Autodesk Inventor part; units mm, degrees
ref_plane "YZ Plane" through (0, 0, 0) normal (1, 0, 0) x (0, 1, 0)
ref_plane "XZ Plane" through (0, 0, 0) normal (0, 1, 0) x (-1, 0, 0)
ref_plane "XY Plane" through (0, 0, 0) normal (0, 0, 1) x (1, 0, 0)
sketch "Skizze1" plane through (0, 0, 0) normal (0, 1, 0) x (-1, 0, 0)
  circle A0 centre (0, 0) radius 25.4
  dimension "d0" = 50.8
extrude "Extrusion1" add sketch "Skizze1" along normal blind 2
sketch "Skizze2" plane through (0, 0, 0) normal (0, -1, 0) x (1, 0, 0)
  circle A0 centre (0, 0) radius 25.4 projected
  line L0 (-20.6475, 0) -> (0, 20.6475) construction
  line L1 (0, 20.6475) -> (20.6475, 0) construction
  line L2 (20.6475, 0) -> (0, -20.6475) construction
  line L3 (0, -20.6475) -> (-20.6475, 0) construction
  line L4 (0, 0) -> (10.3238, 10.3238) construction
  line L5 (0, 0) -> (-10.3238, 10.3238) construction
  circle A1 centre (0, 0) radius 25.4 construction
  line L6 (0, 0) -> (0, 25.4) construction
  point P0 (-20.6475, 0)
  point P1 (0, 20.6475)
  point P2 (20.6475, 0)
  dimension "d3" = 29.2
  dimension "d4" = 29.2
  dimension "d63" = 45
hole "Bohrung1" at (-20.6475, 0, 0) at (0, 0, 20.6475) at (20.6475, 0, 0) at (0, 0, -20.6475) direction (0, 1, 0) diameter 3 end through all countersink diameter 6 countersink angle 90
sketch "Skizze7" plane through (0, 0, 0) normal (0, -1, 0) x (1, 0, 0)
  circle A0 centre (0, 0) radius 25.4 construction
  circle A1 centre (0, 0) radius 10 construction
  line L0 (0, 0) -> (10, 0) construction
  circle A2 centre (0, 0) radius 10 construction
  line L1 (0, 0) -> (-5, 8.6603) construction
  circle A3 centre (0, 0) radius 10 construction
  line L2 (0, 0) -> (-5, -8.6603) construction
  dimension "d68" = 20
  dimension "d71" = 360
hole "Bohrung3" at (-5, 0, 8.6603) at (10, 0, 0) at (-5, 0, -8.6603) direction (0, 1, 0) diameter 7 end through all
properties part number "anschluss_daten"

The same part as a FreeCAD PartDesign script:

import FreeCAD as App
import Part
import Sketcher
from FreeCAD import Vector

doc = App.newDocument("Part")
body = doc.addObject("PartDesign::Body", "Body")

# Sketch on XZ plane
sketch1 = doc.addObject("Sketcher::SketchObject", "Sketch")
body.addObject(sketch1)
sketch1.AttachmentSupport = (doc.XZ_Plane, [""])
sketch1.MapMode = "FlatFace"
sketch1.addGeometry(Part.Circle(Vector(0, 0, 0), Vector(0, 0, 1), 25), False)
sketch1.addConstraint([
    Sketcher.Constraint("Coincident", 0, 3, -1, 1),
    Sketcher.Constraint("Diameter", 0, 50.8),
])
pad1 = doc.addObject("PartDesign::Pad", "Pad")
body.addObject(pad1)
pad1.Profile = sketch1
pad1.Length = 2
pad1.Reversed = True

# Sketch on XZ plane
sketch2 = doc.addObject("Sketcher::SketchObject", "Sketch001")
body.addObject(sketch2)
sketch2.AttachmentSupport = (doc.XZ_Plane, [""])
sketch2.MapMode = "FlatFace"
sketch2.addGeometry([
    Part.Circle(Vector(-20.6, 0, 0), Vector(0, 0, 1), 1.5),
    Part.Circle(Vector(0, 20.6, 0), Vector(0, 0, 1), 1.5),
    Part.Circle(Vector(20.6, 0, 0), Vector(0, 0, 1), 1.5),
    Part.Circle(Vector(0, -20.6, 0), Vector(0, 0, 1), 1.5),
], False)
sketch2.addConstraint([
    Sketcher.Constraint("Equal", 0, 1),
    Sketcher.Constraint("Equal", 1, 2),
    Sketcher.Constraint("Equal", 2, 3),
    Sketcher.Constraint("Symmetric", 0, 3, 2, 3, -1, 1),
    Sketcher.Constraint("Symmetric", 1, 3, 3, 3, -1, 1),
    Sketcher.Constraint("PointOnObject", 0, 3, -1),
    Sketcher.Constraint("PointOnObject", 1, 3, -2),
    Sketcher.Constraint("Diameter", 0, 3.0),
    Sketcher.Constraint("DistanceX", 0, 3, 2, 3, 41.295),
    Sketcher.Constraint("DistanceY", 3, 3, 1, 3, 41.295),
])
doc.recompute()
hole = doc.addObject("PartDesign::Hole", "Hole")
body.addObject(hole)
hole.Profile = sketch2
hole.ThreadType = "None"
hole.Diameter = 3
hole.DepthType = "ThroughAll"
hole.HoleCutType = "Countersink"
hole.HoleCutDiameter = 6
hole.HoleCutCountersinkAngle = 90

# Sketch on XZ plane
sketch3 = doc.addObject("Sketcher::SketchObject", "Sketch002")
body.addObject(sketch3)
sketch3.AttachmentSupport = (doc.XZ_Plane, [""])
sketch3.MapMode = "FlatFace"
sketch3.addGeometry([
    Part.Circle(Vector(-5, 8.7, 0), Vector(0, 0, 1), 3.5),
    Part.Circle(Vector(10, 0, 0), Vector(0, 0, 1), 3.5),
    Part.Circle(Vector(-5, -8.7, 0), Vector(0, 0, 1), 3.5),
], False)
sketch3.addConstraint([
    Sketcher.Constraint("Equal", 0, 1),
    Sketcher.Constraint("Equal", 1, 2),
    Sketcher.Constraint("Symmetric", 0, 3, 2, 3, -1),
    Sketcher.Constraint("PointOnObject", 1, 3, -1),
    Sketcher.Constraint("Diameter", 0, 7.0),
    Sketcher.Constraint("DistanceX", 0, 3, -1, 1, 5.0),
    Sketcher.Constraint("DistanceX", -1, 1, 1, 3, 10.0),
    Sketcher.Constraint("DistanceY", -1, 1, 0, 3, 8.6603),
])
doc.recompute()
hole2 = doc.addObject("PartDesign::Hole", "Hole001")
body.addObject(hole2)
hole2.Profile = sketch3
hole2.ThreadType = "None"
hole2.Diameter = 7
hole2.DepthType = "ThroughAll"

doc.recompute()
